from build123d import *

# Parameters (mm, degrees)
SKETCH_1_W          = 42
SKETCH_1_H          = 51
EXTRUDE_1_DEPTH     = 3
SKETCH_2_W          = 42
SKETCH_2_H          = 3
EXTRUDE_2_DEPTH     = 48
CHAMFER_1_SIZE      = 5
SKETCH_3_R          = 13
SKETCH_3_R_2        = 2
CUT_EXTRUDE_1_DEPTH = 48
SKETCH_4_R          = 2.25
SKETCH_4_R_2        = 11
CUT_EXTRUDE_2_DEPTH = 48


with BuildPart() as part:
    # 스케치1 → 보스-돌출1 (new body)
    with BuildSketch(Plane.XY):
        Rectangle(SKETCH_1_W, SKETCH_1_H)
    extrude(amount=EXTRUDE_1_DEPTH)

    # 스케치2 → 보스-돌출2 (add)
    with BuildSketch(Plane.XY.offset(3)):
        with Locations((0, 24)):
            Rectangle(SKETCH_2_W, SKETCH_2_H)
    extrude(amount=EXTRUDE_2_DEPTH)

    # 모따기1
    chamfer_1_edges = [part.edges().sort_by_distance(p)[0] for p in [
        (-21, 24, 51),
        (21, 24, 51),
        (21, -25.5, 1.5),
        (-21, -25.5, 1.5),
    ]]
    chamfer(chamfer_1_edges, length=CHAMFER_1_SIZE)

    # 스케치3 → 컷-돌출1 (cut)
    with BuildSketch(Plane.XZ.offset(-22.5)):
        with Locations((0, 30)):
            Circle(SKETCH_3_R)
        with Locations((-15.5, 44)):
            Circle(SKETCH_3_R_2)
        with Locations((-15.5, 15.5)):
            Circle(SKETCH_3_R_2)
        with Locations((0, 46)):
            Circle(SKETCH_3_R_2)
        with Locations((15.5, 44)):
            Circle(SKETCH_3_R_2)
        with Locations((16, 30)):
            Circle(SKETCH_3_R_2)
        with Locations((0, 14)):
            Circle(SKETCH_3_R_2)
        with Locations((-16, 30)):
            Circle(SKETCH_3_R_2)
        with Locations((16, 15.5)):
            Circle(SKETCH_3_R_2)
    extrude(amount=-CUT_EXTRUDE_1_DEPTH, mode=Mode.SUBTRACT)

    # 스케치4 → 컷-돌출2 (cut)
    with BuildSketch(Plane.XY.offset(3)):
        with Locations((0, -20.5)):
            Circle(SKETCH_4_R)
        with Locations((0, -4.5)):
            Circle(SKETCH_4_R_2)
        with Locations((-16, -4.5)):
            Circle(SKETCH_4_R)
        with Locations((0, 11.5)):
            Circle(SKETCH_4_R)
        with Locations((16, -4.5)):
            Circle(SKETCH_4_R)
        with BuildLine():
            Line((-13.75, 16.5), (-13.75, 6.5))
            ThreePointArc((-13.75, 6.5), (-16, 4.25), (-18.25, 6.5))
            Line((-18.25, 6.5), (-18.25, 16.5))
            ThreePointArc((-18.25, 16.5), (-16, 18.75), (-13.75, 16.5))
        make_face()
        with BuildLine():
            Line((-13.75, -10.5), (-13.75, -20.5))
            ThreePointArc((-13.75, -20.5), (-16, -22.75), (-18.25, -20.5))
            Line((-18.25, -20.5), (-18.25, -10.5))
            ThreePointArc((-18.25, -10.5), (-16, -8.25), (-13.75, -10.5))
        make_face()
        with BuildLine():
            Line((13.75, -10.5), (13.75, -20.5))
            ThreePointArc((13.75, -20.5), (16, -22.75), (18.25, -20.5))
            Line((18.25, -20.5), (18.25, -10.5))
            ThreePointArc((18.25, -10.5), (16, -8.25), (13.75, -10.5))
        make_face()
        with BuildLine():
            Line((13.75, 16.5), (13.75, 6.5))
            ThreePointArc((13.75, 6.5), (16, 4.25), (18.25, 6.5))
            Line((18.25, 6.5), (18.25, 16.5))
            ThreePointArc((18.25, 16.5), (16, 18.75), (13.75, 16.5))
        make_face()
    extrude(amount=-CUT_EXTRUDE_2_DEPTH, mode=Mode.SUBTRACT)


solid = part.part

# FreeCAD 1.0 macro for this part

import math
import FreeCAD as App
import Part
import Sketcher
from FreeCAD import Vector
Q = App.Units.Quantity


def edges_at(feature, points):
    """Names of the edges that pass closest to the given points."""
    edges = feature.Shape.Edges
    near = lambda p: min(range(len(edges)), key=lambda i: edges[i].distToShape(Part.Vertex(*p))[0])
    return sorted({f"Edge{near(p) + 1}" for p in points})


def add_polygon(sketch, points):
    """Adds a closed chain of lines whose ends are joined by coincident constraints."""
    first, n = sketch.GeometryCount, len(points)
    for a, b in zip(points, points[1:] + points[:1]):
        sketch.addGeometry(Part.LineSegment(App.Vector(*a, 0), App.Vector(*b, 0)), False)
    for i in range(n):
        sketch.addConstraint(Sketcher.Constraint("Coincident", first + i, 2, first + (i + 1) % n, 1))

doc = App.newDocument("Part")
body = doc.addObject("PartDesign::Body", "Body")

# Sketch on XY plane
sketch1 = doc.addObject("Sketcher::SketchObject", "Sketch")
body.addObject(sketch1)
sketch1.AttachmentSupport = (doc.XY_Plane, [""])
sketch1.MapMode = "FlatFace"
add_polygon(sketch1, [(-21, 25.5), (-21, -25.5), (21, -25.5), (21, 25.5)])  # lines 0-3
sketch1.addConstraint(Sketcher.Constraint("Vertical", 0))
sketch1.addConstraint(Sketcher.Constraint("Horizontal", 1))
sketch1.addConstraint(Sketcher.Constraint("Vertical", 2))
sketch1.addConstraint(Sketcher.Constraint("Horizontal", 3))
sketch1.addConstraint(Sketcher.Constraint("Symmetric", 0, 2, 2, 2, -1, 1))
sketch1.addConstraint(Sketcher.Constraint("DistanceX", 1, 1, 1, 2, Q("42 mm")))
sketch1.addConstraint(Sketcher.Constraint("DistanceY", 0, 2, 0, 1, Q("51 mm")))
pad1 = doc.addObject("PartDesign::Pad", "Pad")
body.addObject(pad1)
pad1.Profile = sketch1
pad1.Length = 3

# Sketch on XY plane
sketch2 = doc.addObject("Sketcher::SketchObject", "Sketch001")
body.addObject(sketch2)
sketch2.AttachmentSupport = (doc.XY_Plane, [""])
sketch2.MapMode = "FlatFace"
sketch2.AttachmentOffset = App.Placement(Vector(0, 0, 3), App.Rotation())
add_polygon(sketch2, [(-21, 25.5), (-21, 22.5), (21, 22.5), (21, 25.5)])  # lines 0-3
sketch2.addConstraint(Sketcher.Constraint("Vertical", 0))
sketch2.addConstraint(Sketcher.Constraint("Horizontal", 1))
sketch2.addConstraint(Sketcher.Constraint("Vertical", 2))
sketch2.addConstraint(Sketcher.Constraint("Horizontal", 3))
sketch2.addConstraint(Sketcher.Constraint("DistanceX", 1, 1, 1, 2, Q("42 mm")))
sketch2.addConstraint(Sketcher.Constraint("DistanceY", 0, 2, 0, 1, Q("3 mm")))
sketch2.addConstraint(Sketcher.Constraint("DistanceX", 0, 2, -1, 1, Q("21 mm")))
sketch2.addConstraint(Sketcher.Constraint("DistanceY", -1, 1, 0, 2, Q("22.5 mm")))
pad2 = doc.addObject("PartDesign::Pad", "Pad001")
body.addObject(pad2)
pad2.Profile = sketch2
pad2.Length = 48
doc.recompute()

chamfer = doc.addObject("PartDesign::Chamfer", "Chamfer")
body.addObject(chamfer)
chamfer.Base = (pad2, edges_at(pad2, [
    (-21, 24, 51),
    (21, 24, 51),
    (21, -25.5, 1.5),
    (-21, -25.5, 1.5),
]))
chamfer.Size = 5

# Sketch on XZ plane
sketch3 = doc.addObject("Sketcher::SketchObject", "Sketch002")
body.addObject(sketch3)
sketch3.AttachmentSupport = (doc.XZ_Plane, [""])
sketch3.MapMode = "FlatFace"
sketch3.AttachmentOffset = App.Placement(Vector(0, 0, -22.5), App.Rotation())
sketch3.addGeometry(Part.Circle(Vector(0, 30, 0), Vector(0, 0, 1), 13), False)
sketch3.addGeometry(Part.Circle(Vector(-15.5, 44, 0), Vector(0, 0, 1), 2), False)
sketch3.addGeometry(Part.Circle(Vector(-15.5, 15.5, 0), Vector(0, 0, 1), 2), False)
sketch3.addGeometry(Part.Circle(Vector(0, 46, 0), Vector(0, 0, 1), 2), False)
sketch3.addGeometry(Part.Circle(Vector(15.5, 44, 0), Vector(0, 0, 1), 2), False)
sketch3.addGeometry(Part.Circle(Vector(16, 30, 0), Vector(0, 0, 1), 2), False)
sketch3.addGeometry(Part.Circle(Vector(0, 14, 0), Vector(0, 0, 1), 2), False)
sketch3.addGeometry(Part.Circle(Vector(-16, 30, 0), Vector(0, 0, 1), 2), False)
sketch3.addGeometry(Part.Circle(Vector(16, 15.5, 0), Vector(0, 0, 1), 2), False)
sketch3.addConstraint(Sketcher.Constraint("Equal", 1, 2))
sketch3.addConstraint(Sketcher.Constraint("Equal", 2, 3))
sketch3.addConstraint(Sketcher.Constraint("Equal", 3, 4))
sketch3.addConstraint(Sketcher.Constraint("Equal", 4, 5))
sketch3.addConstraint(Sketcher.Constraint("Equal", 5, 6))
sketch3.addConstraint(Sketcher.Constraint("Equal", 6, 7))
sketch3.addConstraint(Sketcher.Constraint("Equal", 7, 8))
sketch3.addConstraint(Sketcher.Constraint("Symmetric", 1, 3, 4, 3, -2))
sketch3.addConstraint(Sketcher.Constraint("Symmetric", 5, 3, 7, 3, -2))
sketch3.addConstraint(Sketcher.Constraint("PointOnObject", 0, 3, -2))
sketch3.addConstraint(Sketcher.Constraint("PointOnObject", 3, 3, -2))
sketch3.addConstraint(Sketcher.Constraint("PointOnObject", 6, 3, -2))
sketch3.addConstraint(Sketcher.Constraint("Horizontal", 0, 3, 5, 3))
sketch3.addConstraint(Sketcher.Constraint("Horizontal", 2, 3, 8, 3))
sketch3.addConstraint(Sketcher.Constraint("Vertical", 1, 3, 2, 3))
sketch3.addConstraint(Sketcher.Constraint("Vertical", 5, 3, 8, 3))
sketch3.addConstraint(Sketcher.Constraint("Diameter", 0, Q("26 mm")))
sketch3.addConstraint(Sketcher.Constraint("Diameter", 1, Q("4 mm")))
sketch3.addConstraint(Sketcher.Constraint("DistanceY", -1, 1, 0, 3, Q("30 mm")))
sketch3.addConstraint(Sketcher.Constraint("DistanceY", -1, 1, 1, 3, Q("44 mm")))
sketch3.addConstraint(Sketcher.Constraint("DistanceY", -1, 1, 3, 3, Q("46 mm")))
sketch3.addConstraint(Sketcher.Constraint("DistanceX", -1, 1, 5, 3, Q("16 mm")))
sketch3.addConstraint(Sketcher.Constraint("DistanceY", -1, 1, 6, 3, Q("14 mm")))
sketch3.addConstraint(Sketcher.Constraint("DistanceX", 1, 3, 4, 3, Q("31 mm")))
sketch3.addConstraint(Sketcher.Constraint("DistanceY", -1, 1, 2, 3, Q("15.5 mm")))
pocket1 = doc.addObject("PartDesign::Pocket", "Pocket")
body.addObject(pocket1)
pocket1.Profile = sketch3
pocket1.Length = 48

# Sketch on XY plane
sketch4 = doc.addObject("Sketcher::SketchObject", "Sketch003")
body.addObject(sketch4)
sketch4.AttachmentSupport = (doc.XY_Plane, [""])
sketch4.MapMode = "FlatFace"
sketch4.AttachmentOffset = App.Placement(Vector(0, 0, 3), App.Rotation())
sketch4.addGeometry(Part.Circle(Vector(0, -20.5, 0), Vector(0, 0, 1), 2.25), False)
sketch4.addGeometry(Part.Circle(Vector(0, -4.5, 0), Vector(0, 0, 1), 11), False)
sketch4.addGeometry(Part.Circle(Vector(-16, -4.5, 0), Vector(0, 0, 1), 2.25), False)
sketch4.addGeometry(Part.Circle(Vector(0, 11.5, 0), Vector(0, 0, 1), 2.25), False)
sketch4.addGeometry(Part.Circle(Vector(16, -4.5, 0), Vector(0, 0, 1), 2.25), False)
sketch4.addGeometry(Part.LineSegment(Vector(-13.75, 6.5, 0), Vector(-13.75, 16.5, 0)), False)
sketch4.addGeometry(Part.ArcOfCircle(Part.Circle(Vector(-16, 16.5, 0), Vector(0, 0, 1), 2.25), math.radians(0), math.radians(180)), False)
sketch4.addGeometry(Part.LineSegment(Vector(-18.25, 16.5, 0), Vector(-18.25, 6.5, 0)), False)
sketch4.addGeometry(Part.ArcOfCircle(Part.Circle(Vector(-16, 6.5, 0), Vector(0, 0, 1), 2.25), math.radians(180), math.radians(360)), False)
sketch4.addGeometry(Part.LineSegment(Vector(-13.75, -20.5, 0), Vector(-13.75, -10.5, 0)), False)
sketch4.addGeometry(Part.ArcOfCircle(Part.Circle(Vector(-16, -10.5, 0), Vector(0, 0, 1), 2.25), math.radians(0), math.radians(180)), False)
sketch4.addGeometry(Part.LineSegment(Vector(-18.25, -10.5, 0), Vector(-18.25, -20.5, 0)), False)
sketch4.addGeometry(Part.ArcOfCircle(Part.Circle(Vector(-16, -20.5, 0), Vector(0, 0, 1), 2.25), math.radians(180), math.radians(360)), False)
sketch4.addGeometry(Part.LineSegment(Vector(13.75, -10.5, 0), Vector(13.75, -20.5, 0)), False)
sketch4.addGeometry(Part.ArcOfCircle(Part.Circle(Vector(16, -20.5, 0), Vector(0, 0, 1), 2.25), math.radians(180), math.radians(360)), False)
sketch4.addGeometry(Part.LineSegment(Vector(18.25, -20.5, 0), Vector(18.25, -10.5, 0)), False)
sketch4.addGeometry(Part.ArcOfCircle(Part.Circle(Vector(16, -10.5, 0), Vector(0, 0, 1), 2.25), math.radians(0), math.radians(180)), False)
sketch4.addGeometry(Part.LineSegment(Vector(13.75, 16.5, 0), Vector(13.75, 6.5, 0)), False)
sketch4.addGeometry(Part.ArcOfCircle(Part.Circle(Vector(16, 6.5, 0), Vector(0, 0, 1), 2.25), math.radians(180), math.radians(360)), False)
sketch4.addGeometry(Part.LineSegment(Vector(18.25, 6.5, 0), Vector(18.25, 16.5, 0)), False)
sketch4.addGeometry(Part.ArcOfCircle(Part.Circle(Vector(16, 16.5, 0), Vector(0, 0, 1), 2.25), math.radians(0), math.radians(180)), False)
sketch4.addConstraint(Sketcher.Constraint("Tangent", 5, 2, 6, 1))
sketch4.addConstraint(Sketcher.Constraint("Tangent", 6, 2, 7, 1))
sketch4.addConstraint(Sketcher.Constraint("Tangent", 7, 2, 8, 1))
sketch4.addConstraint(Sketcher.Constraint("Tangent", 8, 2, 5, 1))
sketch4.addConstraint(Sketcher.Constraint("Tangent", 9, 2, 10, 1))
sketch4.addConstraint(Sketcher.Constraint("Tangent", 10, 2, 11, 1))
sketch4.addConstraint(Sketcher.Constraint("Tangent", 11, 2, 12, 1))
sketch4.addConstraint(Sketcher.Constraint("Tangent", 12, 2, 9, 1))
sketch4.addConstraint(Sketcher.Constraint("Tangent", 13, 2, 14, 1))
sketch4.addConstraint(Sketcher.Constraint("Tangent", 14, 2, 15, 1))
sketch4.addConstraint(Sketcher.Constraint("Tangent", 15, 2, 16, 1))
sketch4.addConstraint(Sketcher.Constraint("Tangent", 16, 2, 13, 1))
sketch4.addConstraint(Sketcher.Constraint("Tangent", 17, 2, 18, 1))
sketch4.addConstraint(Sketcher.Constraint("Tangent", 18, 2, 19, 1))
sketch4.addConstraint(Sketcher.Constraint("Tangent", 19, 2, 20, 1))
sketch4.addConstraint(Sketcher.Constraint("Tangent", 20, 2, 17, 1))
sketch4.addConstraint(Sketcher.Constraint("Vertical", 5))
sketch4.addConstraint(Sketcher.Constraint("Vertical", 7))
sketch4.addConstraint(Sketcher.Constraint("Vertical", 9))
sketch4.addConstraint(Sketcher.Constraint("Vertical", 11))
sketch4.addConstraint(Sketcher.Constraint("Vertical", 13))
sketch4.addConstraint(Sketcher.Constraint("Vertical", 15))
sketch4.addConstraint(Sketcher.Constraint("Vertical", 17))
sketch4.addConstraint(Sketcher.Constraint("Vertical", 19))
sketch4.addConstraint(Sketcher.Constraint("Equal", 0, 2))
sketch4.addConstraint(Sketcher.Constraint("Equal", 2, 3))
sketch4.addConstraint(Sketcher.Constraint("Equal", 3, 4))
sketch4.addConstraint(Sketcher.Constraint("Equal", 4, 6))
sketch4.addConstraint(Sketcher.Constraint("Equal", 8, 10))
sketch4.addConstraint(Sketcher.Constraint("Equal", 12, 14))
sketch4.addConstraint(Sketcher.Constraint("Equal", 16, 18))
sketch4.addConstraint(Sketcher.Constraint("Symmetric", 2, 3, 4, 3, -2))
sketch4.addConstraint(Sketcher.Constraint("Symmetric", 12, 3, 14, 3, -2))
sketch4.addConstraint(Sketcher.Constraint("Symmetric", 8, 3, 18, 3, -2))
sketch4.addConstraint(Sketcher.Constraint("PointOnObject", 0, 3, -2))
sketch4.addConstraint(Sketcher.Constraint("PointOnObject", 1, 3, -2))
sketch4.addConstraint(Sketcher.Constraint("PointOnObject", 3, 3, -2))
sketch4.addConstraint(Sketcher.Constraint("Horizontal", 1, 3, 2, 3))
sketch4.addConstraint(Sketcher.Constraint("Horizontal", 0, 3, 12, 3))
sketch4.addConstraint(Sketcher.Constraint("Horizontal", 10, 3, 16, 3))
sketch4.addConstraint(Sketcher.Constraint("Horizontal", 6, 3, 20, 3))
sketch4.addConstraint(Sketcher.Constraint("Vertical", 2, 3, 6, 3))
sketch4.addConstraint(Sketcher.Constraint("Vertical", 8, 3, 10, 3))
sketch4.addConstraint(Sketcher.Constraint("Equal", 7, 9))
sketch4.addConstraint(Sketcher.Constraint("Diameter", 1, Q("22 mm")))
sketch4.addConstraint(Sketcher.Constraint("Diameter", 0, Q("4.5 mm")))
sketch4.addConstraint(Sketcher.Constraint("DistanceY", 5, 1, 5, 2, Q("10 mm")))
sketch4.addConstraint(Sketcher.Constraint("DistanceX", 2, 3, -1, 1, Q("16 mm")))
sketch4.addConstraint(Sketcher.Constraint("DistanceY", 0, 3, 1, 3, Q("16 mm")))
sketch4.addConstraint(Sketcher.Constraint("DistanceY", 1, 3, 3, 3, Q("16 mm")))
sketch4.addConstraint(Sketcher.Constraint("DistanceY", 3, 3, 6, 3, Q("5 mm")))
sketch4.addConstraint(Sketcher.Constraint("DistanceY", 0, 3, -1, 1, Q("20.5 mm")))
pocket2 = doc.addObject("PartDesign::Pocket", "Pocket001")
body.addObject(pocket2)
pocket2.Profile = sketch4
pocket2.Length = 48

doc.recompute()
